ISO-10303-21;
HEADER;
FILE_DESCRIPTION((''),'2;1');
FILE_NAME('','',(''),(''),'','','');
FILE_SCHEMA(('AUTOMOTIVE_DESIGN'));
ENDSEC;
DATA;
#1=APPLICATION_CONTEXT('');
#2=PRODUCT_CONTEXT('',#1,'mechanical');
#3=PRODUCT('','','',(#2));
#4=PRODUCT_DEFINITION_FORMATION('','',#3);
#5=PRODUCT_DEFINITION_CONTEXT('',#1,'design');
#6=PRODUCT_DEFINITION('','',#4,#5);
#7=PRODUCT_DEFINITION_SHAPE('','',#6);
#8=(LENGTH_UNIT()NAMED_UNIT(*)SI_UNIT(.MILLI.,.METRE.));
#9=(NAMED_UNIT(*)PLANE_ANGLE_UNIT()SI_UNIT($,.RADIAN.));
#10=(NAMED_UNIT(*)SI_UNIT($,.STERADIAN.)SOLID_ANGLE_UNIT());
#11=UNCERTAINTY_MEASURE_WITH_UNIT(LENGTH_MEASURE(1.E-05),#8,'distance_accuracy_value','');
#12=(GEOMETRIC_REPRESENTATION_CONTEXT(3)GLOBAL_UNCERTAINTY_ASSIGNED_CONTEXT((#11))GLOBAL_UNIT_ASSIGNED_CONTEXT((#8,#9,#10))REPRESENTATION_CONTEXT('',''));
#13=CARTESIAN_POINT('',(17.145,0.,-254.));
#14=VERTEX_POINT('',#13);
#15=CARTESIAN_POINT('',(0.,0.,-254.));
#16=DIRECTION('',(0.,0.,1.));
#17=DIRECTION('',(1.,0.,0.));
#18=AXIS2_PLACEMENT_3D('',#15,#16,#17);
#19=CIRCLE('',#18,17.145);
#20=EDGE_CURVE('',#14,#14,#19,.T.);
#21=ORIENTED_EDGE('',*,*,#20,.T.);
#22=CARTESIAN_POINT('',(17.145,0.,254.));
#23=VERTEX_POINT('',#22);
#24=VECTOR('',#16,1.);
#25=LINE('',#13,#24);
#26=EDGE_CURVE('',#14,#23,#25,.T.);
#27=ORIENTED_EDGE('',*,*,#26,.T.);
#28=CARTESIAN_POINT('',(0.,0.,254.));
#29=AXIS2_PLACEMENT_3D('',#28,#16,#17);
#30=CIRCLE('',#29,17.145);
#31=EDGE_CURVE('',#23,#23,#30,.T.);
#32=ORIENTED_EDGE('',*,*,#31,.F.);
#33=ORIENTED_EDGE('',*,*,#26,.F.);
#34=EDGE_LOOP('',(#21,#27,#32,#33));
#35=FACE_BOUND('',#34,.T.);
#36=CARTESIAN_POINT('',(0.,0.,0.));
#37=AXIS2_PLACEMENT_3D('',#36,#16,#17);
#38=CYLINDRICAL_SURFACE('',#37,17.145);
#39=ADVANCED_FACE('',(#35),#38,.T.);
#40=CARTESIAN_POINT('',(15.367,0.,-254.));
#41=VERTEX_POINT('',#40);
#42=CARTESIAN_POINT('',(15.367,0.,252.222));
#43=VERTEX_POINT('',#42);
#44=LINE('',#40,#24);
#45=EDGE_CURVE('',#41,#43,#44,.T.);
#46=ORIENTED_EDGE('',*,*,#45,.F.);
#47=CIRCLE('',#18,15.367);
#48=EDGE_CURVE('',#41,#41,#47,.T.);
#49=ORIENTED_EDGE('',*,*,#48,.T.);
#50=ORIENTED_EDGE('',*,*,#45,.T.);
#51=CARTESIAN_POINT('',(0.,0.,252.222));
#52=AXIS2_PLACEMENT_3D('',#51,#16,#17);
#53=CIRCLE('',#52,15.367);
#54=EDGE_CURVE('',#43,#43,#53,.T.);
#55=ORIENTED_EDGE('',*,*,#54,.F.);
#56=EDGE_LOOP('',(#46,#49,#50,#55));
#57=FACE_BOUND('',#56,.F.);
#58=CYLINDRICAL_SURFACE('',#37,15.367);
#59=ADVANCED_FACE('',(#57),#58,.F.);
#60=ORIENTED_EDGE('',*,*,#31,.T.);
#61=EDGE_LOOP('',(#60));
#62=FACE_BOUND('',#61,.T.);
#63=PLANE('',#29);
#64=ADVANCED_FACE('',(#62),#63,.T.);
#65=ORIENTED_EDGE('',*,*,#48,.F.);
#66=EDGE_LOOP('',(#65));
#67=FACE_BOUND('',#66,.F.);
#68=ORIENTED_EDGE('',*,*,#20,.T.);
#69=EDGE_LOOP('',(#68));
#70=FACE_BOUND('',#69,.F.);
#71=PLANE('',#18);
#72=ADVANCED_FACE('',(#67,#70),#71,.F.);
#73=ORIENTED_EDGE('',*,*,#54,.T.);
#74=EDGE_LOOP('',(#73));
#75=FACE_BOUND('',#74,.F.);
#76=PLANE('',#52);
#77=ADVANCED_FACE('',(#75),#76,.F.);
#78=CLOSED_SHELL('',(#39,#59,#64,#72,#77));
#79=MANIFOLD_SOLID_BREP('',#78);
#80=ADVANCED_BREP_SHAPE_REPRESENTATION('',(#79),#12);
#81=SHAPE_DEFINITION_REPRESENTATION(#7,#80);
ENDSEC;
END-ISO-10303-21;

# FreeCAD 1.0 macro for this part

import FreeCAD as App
import Part
import Sketcher

V = App.Vector
Q = App.Units.Quantity


def faces_at(feature, points):
    """Names of the faces that lie closest to the given points."""
    faces = feature.Shape.Faces
    near = lambda p: min(range(len(faces)), key=lambda i: faces[i].distToShape(Part.Vertex(*p))[0])
    return sorted({f"Face{near(p) + 1}" for p in points})

doc = App.newDocument("Part")
body = doc.addObject("PartDesign::Body", "Body")

# Sketch on XY plane
sketch1 = body.newObject("Sketcher::SketchObject", "Sketch")
sketch1.AttachmentSupport = (doc.getObject("XY_Plane"), [""])
sketch1.MapMode = "FlatFace"
sketch1.addGeometry(Part.Circle(V(0, 0, 0), V(0, 0, 1), 17), False)
sketch1.addConstraint([
    Sketcher.Constraint("Coincident", 0, 3, -1, 1),
    Sketcher.Constraint("Diameter", 0, Q("1.35 in")),
])
pad1 = body.newObject("PartDesign::Pad", "Pad")
pad1.Profile = sketch1
pad1.Length = Q("20 in")
pad1.Midplane = True
doc.recompute()

thickness = body.newObject("PartDesign::Thickness", "Thickness")
thickness.Base = (pad1, faces_at(pad1, [(0, 0, -254)]))
thickness.Value = Q("0.07 in")
thickness.Reversed = True
thickness.Join = "Arc"

doc.recompute()
